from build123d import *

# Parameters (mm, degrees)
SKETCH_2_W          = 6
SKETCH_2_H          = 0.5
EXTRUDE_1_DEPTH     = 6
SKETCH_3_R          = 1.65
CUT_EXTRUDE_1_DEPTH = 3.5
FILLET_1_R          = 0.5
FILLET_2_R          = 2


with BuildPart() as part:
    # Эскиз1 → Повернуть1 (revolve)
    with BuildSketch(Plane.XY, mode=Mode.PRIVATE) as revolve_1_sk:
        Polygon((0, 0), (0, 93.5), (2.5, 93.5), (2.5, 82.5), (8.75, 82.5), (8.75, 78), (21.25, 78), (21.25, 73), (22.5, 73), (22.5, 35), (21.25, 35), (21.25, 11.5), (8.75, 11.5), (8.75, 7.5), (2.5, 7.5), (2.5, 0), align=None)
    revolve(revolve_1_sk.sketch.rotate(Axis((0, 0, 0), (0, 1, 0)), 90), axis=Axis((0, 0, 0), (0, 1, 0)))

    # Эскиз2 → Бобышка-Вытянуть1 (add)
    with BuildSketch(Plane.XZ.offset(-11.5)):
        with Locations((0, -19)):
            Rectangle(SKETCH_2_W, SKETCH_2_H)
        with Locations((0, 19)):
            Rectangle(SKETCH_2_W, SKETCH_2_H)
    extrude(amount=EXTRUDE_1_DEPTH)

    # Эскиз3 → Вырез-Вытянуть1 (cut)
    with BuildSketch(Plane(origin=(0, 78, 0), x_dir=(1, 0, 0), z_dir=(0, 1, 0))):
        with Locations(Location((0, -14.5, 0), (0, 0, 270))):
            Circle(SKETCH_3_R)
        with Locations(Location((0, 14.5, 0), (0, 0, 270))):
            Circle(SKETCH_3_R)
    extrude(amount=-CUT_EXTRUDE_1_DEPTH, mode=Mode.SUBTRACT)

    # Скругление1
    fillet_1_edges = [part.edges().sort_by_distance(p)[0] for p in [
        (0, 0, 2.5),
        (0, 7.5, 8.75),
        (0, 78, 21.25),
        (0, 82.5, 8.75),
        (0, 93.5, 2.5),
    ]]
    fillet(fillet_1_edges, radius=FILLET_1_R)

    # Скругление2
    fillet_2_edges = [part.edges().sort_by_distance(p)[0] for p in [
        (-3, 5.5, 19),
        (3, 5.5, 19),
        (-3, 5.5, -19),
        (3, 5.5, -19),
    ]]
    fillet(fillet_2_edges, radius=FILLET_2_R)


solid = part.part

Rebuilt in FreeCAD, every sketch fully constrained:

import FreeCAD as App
import Part
import Sketcher


def edges_at(feature, points):
    """Names of the edges that pass closest to the given points."""
    edges = feature.Shape.Edges
    near = lambda p: min(range(len(edges)), key=lambda i: edges[i].distToShape(Part.Vertex(*p))[0])
    return sorted({f"Edge{near(p) + 1}" for p in points})

doc = App.newDocument("Part")
body = doc.addObject("PartDesign::Body", "Body")

# Sketch on XY plane
sketch1 = body.newObject("Sketcher::SketchObject", "Sketch")
sketch1.AttachmentSupport = (doc.getObject("XY_Plane"), [""])
sketch1.MapMode = "FlatFace"
sketch1.addGeometry(Part.LineSegment(App.Vector(0, 93.5, 0), App.Vector(0, 0, 0)), False)
sketch1.addGeometry(Part.LineSegment(App.Vector(0, 0, 0), App.Vector(2.5, 0, 0)), False)
sketch1.addGeometry(Part.LineSegment(App.Vector(2.5, 0, 0), App.Vector(2.5, 7.5, 0)), False)
sketch1.addGeometry(Part.LineSegment(App.Vector(2.5, 7.5, 0), App.Vector(8.8, 7.5, 0)), False)
sketch1.addGeometry(Part.LineSegment(App.Vector(8.8, 7.5, 0), App.Vector(8.8, 11.5, 0)), False)
sketch1.addGeometry(Part.LineSegment(App.Vector(8.8, 11.5, 0), App.Vector(21.2, 11.5, 0)), False)
sketch1.addGeometry(Part.LineSegment(App.Vector(21.2, 11.5, 0), App.Vector(21.2, 35, 0)), False)
sketch1.addGeometry(Part.LineSegment(App.Vector(21.2, 35, 0), App.Vector(22.5, 35, 0)), False)
sketch1.addGeometry(Part.LineSegment(App.Vector(22.5, 35, 0), App.Vector(22.5, 73, 0)), False)
sketch1.addGeometry(Part.LineSegment(App.Vector(22.5, 73, 0), App.Vector(21.2, 73, 0)), False)
sketch1.addGeometry(Part.LineSegment(App.Vector(21.2, 73, 0), App.Vector(21.2, 78, 0)), False)
sketch1.addGeometry(Part.LineSegment(App.Vector(21.2, 78, 0), App.Vector(8.8, 78, 0)), False)
sketch1.addGeometry(Part.LineSegment(App.Vector(8.8, 78, 0), App.Vector(8.8, 82.5, 0)), False)
sketch1.addGeometry(Part.LineSegment(App.Vector(8.8, 82.5, 0), App.Vector(2.5, 82.5, 0)), False)
sketch1.addGeometry(Part.LineSegment(App.Vector(2.5, 82.5, 0), App.Vector(2.5, 93.5, 0)), False)
sketch1.addGeometry(Part.LineSegment(App.Vector(2.5, 93.5, 0), App.Vector(0, 93.5, 0)), False)
sketch1.addConstraint(Sketcher.Constraint("Coincident", 0, 2, 1, 1))
sketch1.addConstraint(Sketcher.Constraint("Coincident", 1, 2, 2, 1))
sketch1.addConstraint(Sketcher.Constraint("Coincident", 2, 2, 3, 1))
sketch1.addConstraint(Sketcher.Constraint("Coincident", 3, 2, 4, 1))
sketch1.addConstraint(Sketcher.Constraint("Coincident", 4, 2, 5, 1))
sketch1.addConstraint(Sketcher.Constraint("Coincident", 5, 2, 6, 1))
sketch1.addConstraint(Sketcher.Constraint("Coincident", 6, 2, 7, 1))
sketch1.addConstraint(Sketcher.Constraint("Coincident", 7, 2, 8, 1))
sketch1.addConstraint(Sketcher.Constraint("Coincident", 8, 2, 9, 1))
sketch1.addConstraint(Sketcher.Constraint("Coincident", 9, 2, 10, 1))
sketch1.addConstraint(Sketcher.Constraint("Coincident", 10, 2, 11, 1))
sketch1.addConstraint(Sketcher.Constraint("Coincident", 11, 2, 12, 1))
sketch1.addConstraint(Sketcher.Constraint("Coincident", 12, 2, 13, 1))
sketch1.addConstraint(Sketcher.Constraint("Coincident", 13, 2, 14, 1))
sketch1.addConstraint(Sketcher.Constraint("Coincident", 14, 2, 15, 1))
sketch1.addConstraint(Sketcher.Constraint("Coincident", 15, 2, 0, 1))
sketch1.addConstraint(Sketcher.Constraint("Vertical", 0))
sketch1.addConstraint(Sketcher.Constraint("Horizontal", 1))
sketch1.addConstraint(Sketcher.Constraint("Vertical", 2))
sketch1.addConstraint(Sketcher.Constraint("Horizontal", 3))
sketch1.addConstraint(Sketcher.Constraint("Vertical", 4))
sketch1.addConstraint(Sketcher.Constraint("Horizontal", 5))
sketch1.addConstraint(Sketcher.Constraint("Vertical", 6))
sketch1.addConstraint(Sketcher.Constraint("Horizontal", 7))
sketch1.addConstraint(Sketcher.Constraint("Vertical", 8))
sketch1.addConstraint(Sketcher.Constraint("Horizontal", 9))
sketch1.addConstraint(Sketcher.Constraint("Vertical", 10))
sketch1.addConstraint(Sketcher.Constraint("Horizontal", 11))
sketch1.addConstraint(Sketcher.Constraint("Vertical", 12))
sketch1.addConstraint(Sketcher.Constraint("Horizontal", 13))
sketch1.addConstraint(Sketcher.Constraint("Vertical", 14))
sketch1.addConstraint(Sketcher.Constraint("Horizontal", 15))
sketch1.addConstraint(Sketcher.Constraint("Coincident", 0, 2, -1, 1))
sketch1.addConstraint(Sketcher.Constraint("Vertical", 6, 2, 9, 2))
sketch1.addConstraint(Sketcher.Constraint("Vertical", 4, 2, 11, 2))
sketch1.addConstraint(Sketcher.Constraint("Vertical", 2, 2, 13, 2))
sketch1.addConstraint(Sketcher.Constraint("DistanceY", 4, 1, 4, 2, 4.0))
sketch1.addConstraint(Sketcher.Constraint("DistanceY", 8, 1, 8, 2, 38.0))
sketch1.addConstraint(Sketcher.Constraint("DistanceY", 10, 1, 10, 2, 5.0))
sketch1.addConstraint(Sketcher.Constraint("DistanceY", 14, 1, 14, 2, 11.0))
sketch1.addConstraint(Sketcher.Constraint("DistanceX", 1, 1, 1, 2, 2.5))
sketch1.addConstraint(Sketcher.Constraint("DistanceX", 5, 1, 5, 2, 12.5))
sketch1.addConstraint(Sketcher.Constraint("DistanceY", 0, 2, 0, 1, 93.5))
sketch1.addConstraint(Sketcher.Constraint("DistanceY", 2, 1, 2, 2, 7.5))
sketch1.addConstraint(Sketcher.Constraint("DistanceY", 6, 1, 6, 2, 23.5))
sketch1.addConstraint(Sketcher.Constraint("DistanceX", 2, 2, 7, 2, 20.0))
sketch1.addConstraint(Sketcher.Constraint("DistanceX", 3, 1, 3, 2, 6.25))
revolution = body.newObject("PartDesign::Revolution", "Revolution")
revolution.Profile = sketch1
revolution.ReferenceAxis = (sketch1, ["V_Axis"])
revolution.Angle = 360

# Sketch on XZ plane
sketch2 = body.newObject("Sketcher::SketchObject", "Sketch001")
sketch2.AttachmentSupport = (doc.getObject("XZ_Plane"), [""])
sketch2.MapMode = "FlatFace"
sketch2.AttachmentOffset = App.Placement(App.Vector(0, 0, -11.5), App.Rotation())
sketch2.addGeometry(Part.LineSegment(App.Vector(-3, -18.8, 0), App.Vector(-3, -19.2, 0)), False)
sketch2.addGeometry(Part.LineSegment(App.Vector(-3, -19.2, 0), App.Vector(3, -19.2, 0)), False)
sketch2.addGeometry(Part.LineSegment(App.Vector(3, -19.2, 0), App.Vector(3, -18.8, 0)), False)
sketch2.addGeometry(Part.LineSegment(App.Vector(3, -18.8, 0), App.Vector(-3, -18.8, 0)), False)
sketch2.addGeometry(Part.LineSegment(App.Vector(-3, 19.2, 0), App.Vector(-3, 18.8, 0)), False)
sketch2.addGeometry(Part.LineSegment(App.Vector(-3, 18.8, 0), App.Vector(3, 18.8, 0)), False)
sketch2.addGeometry(Part.LineSegment(App.Vector(3, 18.8, 0), App.Vector(3, 19.2, 0)), False)
sketch2.addGeometry(Part.LineSegment(App.Vector(3, 19.2, 0), App.Vector(-3, 19.2, 0)), False)
sketch2.addConstraint(Sketcher.Constraint("Coincident", 0, 2, 1, 1))
sketch2.addConstraint(Sketcher.Constraint("Coincident", 1, 2, 2, 1))
sketch2.addConstraint(Sketcher.Constraint("Coincident", 2, 2, 3, 1))
sketch2.addConstraint(Sketcher.Constraint("Coincident", 3, 2, 0, 1))
sketch2.addConstraint(Sketcher.Constraint("Coincident", 4, 2, 5, 1))
sketch2.addConstraint(Sketcher.Constraint("Coincident", 5, 2, 6, 1))
sketch2.addConstraint(Sketcher.Constraint("Coincident", 6, 2, 7, 1))
sketch2.addConstraint(Sketcher.Constraint("Coincident", 7, 2, 4, 1))
sketch2.addConstraint(Sketcher.Constraint("Vertical", 0))
sketch2.addConstraint(Sketcher.Constraint("Horizontal", 1))
sketch2.addConstraint(Sketcher.Constraint("Vertical", 2))
sketch2.addConstraint(Sketcher.Constraint("Horizontal", 3))
sketch2.addConstraint(Sketcher.Constraint("Vertical", 4))
sketch2.addConstraint(Sketcher.Constraint("Horizontal", 5))
sketch2.addConstraint(Sketcher.Constraint("Vertical", 6))
sketch2.addConstraint(Sketcher.Constraint("Horizontal", 7))
sketch2.addConstraint(Sketcher.Constraint("Symmetric", 2, 2, 4, 2, -1, 1))
sketch2.addConstraint(Sketcher.Constraint("Symmetric", 0, 2, 6, 2, -1, 1))
sketch2.addConstraint(Sketcher.Constraint("Vertical", 3, 2, 4, 2))
sketch2.addConstraint(Sketcher.Constraint("DistanceX", 1, 1, 1, 2, 6.0))
sketch2.addConstraint(Sketcher.Constraint("DistanceY", 0, 2, 0, 1, 0.5))
sketch2.addConstraint(Sketcher.Constraint("DistanceY", 0, 2, 4, 2, 38.0))
pad1 = body.newObject("PartDesign::Pad", "Pad")
pad1.Profile = sketch2
pad1.Length = 6

# Sketch on XZ plane
sketch3 = body.newObject("Sketcher::SketchObject", "Sketch002")
sketch3.AttachmentSupport = (doc.getObject("XZ_Plane"), [""])
sketch3.MapMode = "FlatFace"
sketch3.AttachmentOffset = App.Placement(App.Vector(0, 0, -78), App.Rotation())
sketch3.addGeometry(Part.Circle(App.Vector(0, 14.5, 0), App.Vector(0, 0, 1), 1.6), False)
sketch3.addGeometry(Part.Circle(App.Vector(0, -14.5, 0), App.Vector(0, 0, 1), 1.6), False)
sketch3.addConstraint(Sketcher.Constraint("Equal", 0, 1))
sketch3.addConstraint(Sketcher.Constraint("Symmetric", 0, 3, 1, 3, -1, 1))
sketch3.addConstraint(Sketcher.Constraint("PointOnObject", 0, 3, -2))
sketch3.addConstraint(Sketcher.Constraint("Diameter", 0, 3.3))
sketch3.addConstraint(Sketcher.Constraint("DistanceY", 1, 3, 0, 3, 29.0))
pocket1 = body.newObject("PartDesign::Pocket", "Pocket")
pocket1.Profile = sketch3
pocket1.Length = 3.5
pocket1.Reversed = True
doc.recompute()

fillet = body.newObject("PartDesign::Fillet", "Fillet")
fillet.Base = (pocket1, edges_at(pocket1, [
    (0, 0, 2.5),
    (0, 7.5, 8.75),
    (0, 78, 21.25),
    (0, 82.5, 8.75),
    (0, 93.5, 2.5),
]))
fillet.Radius = 0.5
doc.recompute()

fillet2 = body.newObject("PartDesign::Fillet", "Fillet001")
fillet2.Base = (fillet, edges_at(fillet, [
    (-3, 5.5, 19),
    (3, 5.5, 19),
    (-3, 5.5, -19),
    (3, 5.5, -19),
]))
fillet2.Radius = 2

doc.recompute()
